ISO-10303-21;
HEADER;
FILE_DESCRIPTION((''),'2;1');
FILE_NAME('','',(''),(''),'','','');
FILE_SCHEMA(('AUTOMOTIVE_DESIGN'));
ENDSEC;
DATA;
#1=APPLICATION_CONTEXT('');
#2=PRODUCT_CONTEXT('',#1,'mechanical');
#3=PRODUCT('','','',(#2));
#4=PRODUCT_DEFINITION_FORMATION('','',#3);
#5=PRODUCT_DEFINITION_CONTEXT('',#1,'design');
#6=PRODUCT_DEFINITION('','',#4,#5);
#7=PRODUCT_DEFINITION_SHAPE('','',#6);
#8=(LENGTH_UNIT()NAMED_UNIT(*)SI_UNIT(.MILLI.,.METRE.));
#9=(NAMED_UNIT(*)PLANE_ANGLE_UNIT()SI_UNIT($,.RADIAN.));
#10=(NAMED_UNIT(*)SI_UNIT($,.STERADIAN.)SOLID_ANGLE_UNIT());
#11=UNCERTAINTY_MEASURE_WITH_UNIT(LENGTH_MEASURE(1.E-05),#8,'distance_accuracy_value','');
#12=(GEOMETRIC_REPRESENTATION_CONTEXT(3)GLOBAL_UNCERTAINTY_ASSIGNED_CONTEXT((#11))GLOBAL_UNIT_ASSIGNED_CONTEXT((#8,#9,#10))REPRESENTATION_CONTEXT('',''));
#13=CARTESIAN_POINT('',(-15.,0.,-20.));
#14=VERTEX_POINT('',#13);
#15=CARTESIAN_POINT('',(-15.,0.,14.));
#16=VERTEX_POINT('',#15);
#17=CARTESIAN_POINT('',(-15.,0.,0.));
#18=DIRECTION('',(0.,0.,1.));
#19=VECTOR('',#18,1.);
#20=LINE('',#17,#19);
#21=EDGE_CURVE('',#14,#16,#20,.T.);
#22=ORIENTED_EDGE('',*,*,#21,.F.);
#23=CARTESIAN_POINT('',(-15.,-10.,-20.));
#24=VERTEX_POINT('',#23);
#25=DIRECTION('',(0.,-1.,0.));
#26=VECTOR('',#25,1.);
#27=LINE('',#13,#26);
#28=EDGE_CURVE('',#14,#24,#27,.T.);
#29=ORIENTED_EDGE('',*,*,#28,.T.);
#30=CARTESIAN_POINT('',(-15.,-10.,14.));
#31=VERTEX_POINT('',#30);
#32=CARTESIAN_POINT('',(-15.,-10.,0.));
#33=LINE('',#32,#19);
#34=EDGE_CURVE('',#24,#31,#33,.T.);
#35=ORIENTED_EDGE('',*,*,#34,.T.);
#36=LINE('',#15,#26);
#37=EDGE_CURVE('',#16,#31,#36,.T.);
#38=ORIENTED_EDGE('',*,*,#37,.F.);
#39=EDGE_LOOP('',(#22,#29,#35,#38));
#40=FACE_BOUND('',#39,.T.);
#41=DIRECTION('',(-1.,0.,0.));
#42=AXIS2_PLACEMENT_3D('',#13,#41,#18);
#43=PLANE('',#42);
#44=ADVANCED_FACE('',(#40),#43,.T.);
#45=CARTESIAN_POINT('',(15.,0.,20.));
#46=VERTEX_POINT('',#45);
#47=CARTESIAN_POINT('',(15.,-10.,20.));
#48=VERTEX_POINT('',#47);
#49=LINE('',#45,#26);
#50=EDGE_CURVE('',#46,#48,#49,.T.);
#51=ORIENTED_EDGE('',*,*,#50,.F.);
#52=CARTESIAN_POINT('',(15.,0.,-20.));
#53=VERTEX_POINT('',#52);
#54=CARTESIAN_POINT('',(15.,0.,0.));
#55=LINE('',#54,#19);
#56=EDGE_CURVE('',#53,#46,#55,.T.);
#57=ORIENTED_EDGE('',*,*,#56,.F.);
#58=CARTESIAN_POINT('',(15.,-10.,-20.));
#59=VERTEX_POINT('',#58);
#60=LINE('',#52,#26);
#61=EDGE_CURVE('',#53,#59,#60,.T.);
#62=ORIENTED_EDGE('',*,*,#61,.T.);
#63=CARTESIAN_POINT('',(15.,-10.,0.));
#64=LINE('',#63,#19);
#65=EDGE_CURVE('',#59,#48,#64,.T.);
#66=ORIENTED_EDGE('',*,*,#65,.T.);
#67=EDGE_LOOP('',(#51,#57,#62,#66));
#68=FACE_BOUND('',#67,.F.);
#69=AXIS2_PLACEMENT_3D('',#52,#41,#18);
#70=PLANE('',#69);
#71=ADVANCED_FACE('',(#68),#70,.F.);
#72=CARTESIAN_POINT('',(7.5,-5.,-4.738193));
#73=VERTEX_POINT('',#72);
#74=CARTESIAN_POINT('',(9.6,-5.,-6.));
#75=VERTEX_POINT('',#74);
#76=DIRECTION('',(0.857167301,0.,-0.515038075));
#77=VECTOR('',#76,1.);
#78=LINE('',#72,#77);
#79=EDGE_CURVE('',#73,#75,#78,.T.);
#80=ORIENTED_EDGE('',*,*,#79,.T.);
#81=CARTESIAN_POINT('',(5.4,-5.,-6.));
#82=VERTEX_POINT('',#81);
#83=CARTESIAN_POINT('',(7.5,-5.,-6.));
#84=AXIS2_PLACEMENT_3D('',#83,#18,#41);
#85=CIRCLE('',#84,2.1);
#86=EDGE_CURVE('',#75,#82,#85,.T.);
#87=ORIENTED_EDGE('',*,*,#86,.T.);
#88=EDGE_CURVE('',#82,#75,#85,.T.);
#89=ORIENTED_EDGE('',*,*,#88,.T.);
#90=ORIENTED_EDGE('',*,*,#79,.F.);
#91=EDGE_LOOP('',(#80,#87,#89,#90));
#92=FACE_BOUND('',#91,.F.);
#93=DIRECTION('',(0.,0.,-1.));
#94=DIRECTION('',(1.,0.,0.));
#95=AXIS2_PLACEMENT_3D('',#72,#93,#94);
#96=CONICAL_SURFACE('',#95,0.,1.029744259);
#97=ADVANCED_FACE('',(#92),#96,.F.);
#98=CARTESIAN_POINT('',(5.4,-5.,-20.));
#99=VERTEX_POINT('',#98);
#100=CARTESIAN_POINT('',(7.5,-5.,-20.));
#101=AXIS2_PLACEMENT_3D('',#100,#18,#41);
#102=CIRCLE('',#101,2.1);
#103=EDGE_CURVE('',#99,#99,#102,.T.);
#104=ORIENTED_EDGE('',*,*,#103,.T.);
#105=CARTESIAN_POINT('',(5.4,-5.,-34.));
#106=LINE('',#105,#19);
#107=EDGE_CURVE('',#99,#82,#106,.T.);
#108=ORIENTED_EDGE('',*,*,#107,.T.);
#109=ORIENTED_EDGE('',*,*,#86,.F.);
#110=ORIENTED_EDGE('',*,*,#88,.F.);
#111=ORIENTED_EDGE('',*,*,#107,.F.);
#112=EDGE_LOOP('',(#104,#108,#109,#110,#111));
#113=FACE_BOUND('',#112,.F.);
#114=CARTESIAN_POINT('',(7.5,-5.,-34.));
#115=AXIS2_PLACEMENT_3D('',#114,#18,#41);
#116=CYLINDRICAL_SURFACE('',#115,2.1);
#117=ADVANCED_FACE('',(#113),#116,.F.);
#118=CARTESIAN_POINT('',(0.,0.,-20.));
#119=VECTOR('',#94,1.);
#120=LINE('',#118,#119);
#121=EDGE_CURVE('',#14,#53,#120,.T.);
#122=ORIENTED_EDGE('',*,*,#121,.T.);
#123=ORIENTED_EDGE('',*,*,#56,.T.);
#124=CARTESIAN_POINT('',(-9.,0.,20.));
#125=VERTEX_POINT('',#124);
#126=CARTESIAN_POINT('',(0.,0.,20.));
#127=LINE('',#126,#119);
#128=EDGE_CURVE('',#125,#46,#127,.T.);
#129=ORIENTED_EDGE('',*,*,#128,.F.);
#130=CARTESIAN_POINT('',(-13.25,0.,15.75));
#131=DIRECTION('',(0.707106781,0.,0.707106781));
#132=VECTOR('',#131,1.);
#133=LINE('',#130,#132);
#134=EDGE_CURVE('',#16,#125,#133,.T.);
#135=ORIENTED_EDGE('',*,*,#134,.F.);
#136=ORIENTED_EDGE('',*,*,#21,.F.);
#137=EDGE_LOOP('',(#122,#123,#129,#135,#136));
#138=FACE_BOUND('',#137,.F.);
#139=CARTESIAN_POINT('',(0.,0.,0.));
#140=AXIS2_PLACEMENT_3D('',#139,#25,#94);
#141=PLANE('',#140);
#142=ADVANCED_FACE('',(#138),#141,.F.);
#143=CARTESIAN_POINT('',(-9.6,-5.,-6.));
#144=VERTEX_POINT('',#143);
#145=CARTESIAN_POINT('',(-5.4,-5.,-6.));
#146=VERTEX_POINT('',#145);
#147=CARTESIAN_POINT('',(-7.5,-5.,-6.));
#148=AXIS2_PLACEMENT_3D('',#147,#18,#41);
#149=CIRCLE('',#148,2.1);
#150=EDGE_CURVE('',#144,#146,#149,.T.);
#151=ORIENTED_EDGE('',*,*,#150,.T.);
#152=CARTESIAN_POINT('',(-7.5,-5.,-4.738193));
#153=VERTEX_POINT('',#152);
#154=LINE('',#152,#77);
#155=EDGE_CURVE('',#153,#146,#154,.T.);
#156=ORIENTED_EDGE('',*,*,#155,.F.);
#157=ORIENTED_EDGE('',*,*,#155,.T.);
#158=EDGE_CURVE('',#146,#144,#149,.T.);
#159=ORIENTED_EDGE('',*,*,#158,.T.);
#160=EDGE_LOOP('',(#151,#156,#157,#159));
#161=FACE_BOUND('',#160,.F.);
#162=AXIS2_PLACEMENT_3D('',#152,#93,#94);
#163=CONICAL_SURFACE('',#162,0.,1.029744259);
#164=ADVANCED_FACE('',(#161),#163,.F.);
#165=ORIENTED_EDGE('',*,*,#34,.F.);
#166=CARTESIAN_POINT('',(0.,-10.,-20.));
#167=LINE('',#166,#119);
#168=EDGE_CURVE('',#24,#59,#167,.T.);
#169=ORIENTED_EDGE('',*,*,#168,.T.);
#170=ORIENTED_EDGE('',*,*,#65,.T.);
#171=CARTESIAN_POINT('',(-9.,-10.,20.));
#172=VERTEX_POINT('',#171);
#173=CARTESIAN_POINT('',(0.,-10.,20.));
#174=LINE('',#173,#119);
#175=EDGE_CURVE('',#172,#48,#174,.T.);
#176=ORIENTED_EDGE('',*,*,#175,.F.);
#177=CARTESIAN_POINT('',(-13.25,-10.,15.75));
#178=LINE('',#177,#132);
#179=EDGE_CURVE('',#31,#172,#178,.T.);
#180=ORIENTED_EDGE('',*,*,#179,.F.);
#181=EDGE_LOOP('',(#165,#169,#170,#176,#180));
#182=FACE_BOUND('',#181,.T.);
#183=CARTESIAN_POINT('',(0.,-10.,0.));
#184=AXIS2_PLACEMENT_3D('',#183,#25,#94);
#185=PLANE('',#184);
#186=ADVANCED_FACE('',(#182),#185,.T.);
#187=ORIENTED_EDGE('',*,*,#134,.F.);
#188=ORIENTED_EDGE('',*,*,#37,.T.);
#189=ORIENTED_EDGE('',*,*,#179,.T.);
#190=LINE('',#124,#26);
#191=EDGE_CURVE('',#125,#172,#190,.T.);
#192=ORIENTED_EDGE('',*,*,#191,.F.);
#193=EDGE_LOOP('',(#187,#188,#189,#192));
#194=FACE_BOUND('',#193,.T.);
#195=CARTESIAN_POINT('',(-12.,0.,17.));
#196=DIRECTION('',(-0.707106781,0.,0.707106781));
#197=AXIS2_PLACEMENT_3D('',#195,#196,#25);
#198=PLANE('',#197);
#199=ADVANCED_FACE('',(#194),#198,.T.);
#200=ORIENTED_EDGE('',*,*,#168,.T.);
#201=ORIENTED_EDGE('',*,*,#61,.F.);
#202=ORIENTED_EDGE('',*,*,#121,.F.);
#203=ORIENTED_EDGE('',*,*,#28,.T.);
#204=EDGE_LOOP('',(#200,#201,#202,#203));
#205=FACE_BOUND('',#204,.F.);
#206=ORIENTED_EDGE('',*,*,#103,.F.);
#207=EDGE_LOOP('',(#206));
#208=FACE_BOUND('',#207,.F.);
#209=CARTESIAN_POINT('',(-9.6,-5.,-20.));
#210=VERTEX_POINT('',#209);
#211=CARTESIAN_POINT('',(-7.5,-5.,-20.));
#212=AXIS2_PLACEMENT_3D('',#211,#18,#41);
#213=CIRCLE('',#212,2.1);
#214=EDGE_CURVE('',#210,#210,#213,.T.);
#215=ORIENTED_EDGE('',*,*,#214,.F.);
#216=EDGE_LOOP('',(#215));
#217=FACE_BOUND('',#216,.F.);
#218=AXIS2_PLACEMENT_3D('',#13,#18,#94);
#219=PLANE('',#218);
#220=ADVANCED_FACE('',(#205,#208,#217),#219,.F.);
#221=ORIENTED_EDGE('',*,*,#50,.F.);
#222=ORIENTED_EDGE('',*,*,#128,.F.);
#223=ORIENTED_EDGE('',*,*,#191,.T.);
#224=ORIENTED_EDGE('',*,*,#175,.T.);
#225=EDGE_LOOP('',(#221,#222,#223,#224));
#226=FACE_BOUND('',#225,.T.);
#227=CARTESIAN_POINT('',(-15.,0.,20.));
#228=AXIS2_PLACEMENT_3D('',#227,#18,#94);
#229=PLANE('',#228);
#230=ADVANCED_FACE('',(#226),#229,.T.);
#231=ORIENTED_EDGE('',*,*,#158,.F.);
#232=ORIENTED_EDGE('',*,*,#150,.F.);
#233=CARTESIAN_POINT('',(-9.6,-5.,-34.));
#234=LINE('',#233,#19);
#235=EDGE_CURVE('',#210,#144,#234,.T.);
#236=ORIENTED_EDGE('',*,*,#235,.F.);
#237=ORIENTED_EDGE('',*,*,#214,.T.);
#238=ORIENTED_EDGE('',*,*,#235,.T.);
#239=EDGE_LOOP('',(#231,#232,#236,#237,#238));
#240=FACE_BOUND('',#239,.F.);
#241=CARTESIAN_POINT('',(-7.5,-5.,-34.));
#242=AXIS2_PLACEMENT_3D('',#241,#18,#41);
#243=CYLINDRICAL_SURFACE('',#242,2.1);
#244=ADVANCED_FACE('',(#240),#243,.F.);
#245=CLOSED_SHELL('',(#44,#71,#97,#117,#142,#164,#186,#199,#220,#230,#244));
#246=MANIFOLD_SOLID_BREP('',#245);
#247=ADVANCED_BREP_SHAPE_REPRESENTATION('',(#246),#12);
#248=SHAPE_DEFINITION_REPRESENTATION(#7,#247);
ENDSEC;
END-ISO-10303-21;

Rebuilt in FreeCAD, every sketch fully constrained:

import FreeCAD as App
import Part
import Sketcher

V = App.Vector


def edges_at(feature, points):
    """Names of the edges that pass closest to the given points."""
    edges = feature.Shape.Edges
    near = lambda p: min(range(len(edges)), key=lambda i: edges[i].distToShape(Part.Vertex(*p))[0])
    return sorted({f"Edge{near(p) + 1}" for p in points})


def add_polygon(sketch, points):
    """Adds a closed chain of lines whose ends are joined by coincident constraints."""
    first, n = sketch.GeometryCount, len(points)
    for a, b in zip(points, points[1:] + points[:1]):
        sketch.addGeometry(Part.LineSegment(App.Vector(*a, 0), App.Vector(*b, 0)), False)
    for i in range(n):
        sketch.addConstraint(Sketcher.Constraint("Coincident", first + i, 2, first + (i + 1) % n, 1))

doc = App.newDocument("Part")
body = doc.addObject("PartDesign::Body", "Body")

sketch1 = body.newObject("Sketcher::SketchObject", "Sketch")
sketch1.AttachmentSupport = (doc.getObject("XZ_Plane"), [""])
sketch1.MapMode = "FlatFace"
add_polygon(sketch1, [(-15, 20), (-15, -20), (15, -20), (15, 20)])
sketch1.addConstraint([
    Sketcher.Constraint("Vertical", 0),
    Sketcher.Constraint("Horizontal", 1),
    Sketcher.Constraint("Vertical", 2),
    Sketcher.Constraint("Horizontal", 3),
    Sketcher.Constraint("Symmetric", 0, 2, 2, 2, -1, 1),
    Sketcher.Constraint("DistanceX", 1, 1, 1, 2, 30.0),
    Sketcher.Constraint("DistanceY", 0, 2, 0, 1, 40.0),
])
pad1 = body.newObject("PartDesign::Pad", "Pad")
pad1.Profile = sketch1
pad1.Length = 10
doc.recompute()

chamfer = body.newObject("PartDesign::Chamfer", "Chamfer")
chamfer.Base = (pad1, edges_at(pad1, [(-15, -5, 20)]))
chamfer.Size = 6

sketch2 = body.newObject("Sketcher::SketchObject", "Sketch001")
sketch2.AttachmentSupport = (doc.getObject("XY_Plane"), [""])
sketch2.MapMode = "FlatFace"
sketch2.AttachmentOffset = App.Placement(V(0, 0, -20), App.Rotation())
sketch2.addGeometry([
    Part.Circle(V(7.5, -5, 0), V(0, 0, 1), 2.1),
    Part.Circle(V(-7.5, -5, 0), V(0, 0, 1), 2.1),
], False)
sketch2.addConstraint([
    Sketcher.Constraint("Equal", 0, 1),
    Sketcher.Constraint("Symmetric", 0, 3, 1, 3, -2),
    Sketcher.Constraint("Diameter", 0, 4.2),
    Sketcher.Constraint("DistanceY", 0, 3, -1, 1, 5.0),
    Sketcher.Constraint("DistanceX", 1, 3, 0, 3, 15.0),
])
doc.recompute()
hole = body.newObject("PartDesign::Hole", "Hole")
hole.Profile = sketch2
hole.ThreadType = "None"
hole.Diameter = 4.2
hole.DepthType = "Dimension"
hole.Depth = 14
hole.DrillPoint = "Angled"
hole.DrillPointAngle = 118
hole.Reversed = True

doc.recompute()
